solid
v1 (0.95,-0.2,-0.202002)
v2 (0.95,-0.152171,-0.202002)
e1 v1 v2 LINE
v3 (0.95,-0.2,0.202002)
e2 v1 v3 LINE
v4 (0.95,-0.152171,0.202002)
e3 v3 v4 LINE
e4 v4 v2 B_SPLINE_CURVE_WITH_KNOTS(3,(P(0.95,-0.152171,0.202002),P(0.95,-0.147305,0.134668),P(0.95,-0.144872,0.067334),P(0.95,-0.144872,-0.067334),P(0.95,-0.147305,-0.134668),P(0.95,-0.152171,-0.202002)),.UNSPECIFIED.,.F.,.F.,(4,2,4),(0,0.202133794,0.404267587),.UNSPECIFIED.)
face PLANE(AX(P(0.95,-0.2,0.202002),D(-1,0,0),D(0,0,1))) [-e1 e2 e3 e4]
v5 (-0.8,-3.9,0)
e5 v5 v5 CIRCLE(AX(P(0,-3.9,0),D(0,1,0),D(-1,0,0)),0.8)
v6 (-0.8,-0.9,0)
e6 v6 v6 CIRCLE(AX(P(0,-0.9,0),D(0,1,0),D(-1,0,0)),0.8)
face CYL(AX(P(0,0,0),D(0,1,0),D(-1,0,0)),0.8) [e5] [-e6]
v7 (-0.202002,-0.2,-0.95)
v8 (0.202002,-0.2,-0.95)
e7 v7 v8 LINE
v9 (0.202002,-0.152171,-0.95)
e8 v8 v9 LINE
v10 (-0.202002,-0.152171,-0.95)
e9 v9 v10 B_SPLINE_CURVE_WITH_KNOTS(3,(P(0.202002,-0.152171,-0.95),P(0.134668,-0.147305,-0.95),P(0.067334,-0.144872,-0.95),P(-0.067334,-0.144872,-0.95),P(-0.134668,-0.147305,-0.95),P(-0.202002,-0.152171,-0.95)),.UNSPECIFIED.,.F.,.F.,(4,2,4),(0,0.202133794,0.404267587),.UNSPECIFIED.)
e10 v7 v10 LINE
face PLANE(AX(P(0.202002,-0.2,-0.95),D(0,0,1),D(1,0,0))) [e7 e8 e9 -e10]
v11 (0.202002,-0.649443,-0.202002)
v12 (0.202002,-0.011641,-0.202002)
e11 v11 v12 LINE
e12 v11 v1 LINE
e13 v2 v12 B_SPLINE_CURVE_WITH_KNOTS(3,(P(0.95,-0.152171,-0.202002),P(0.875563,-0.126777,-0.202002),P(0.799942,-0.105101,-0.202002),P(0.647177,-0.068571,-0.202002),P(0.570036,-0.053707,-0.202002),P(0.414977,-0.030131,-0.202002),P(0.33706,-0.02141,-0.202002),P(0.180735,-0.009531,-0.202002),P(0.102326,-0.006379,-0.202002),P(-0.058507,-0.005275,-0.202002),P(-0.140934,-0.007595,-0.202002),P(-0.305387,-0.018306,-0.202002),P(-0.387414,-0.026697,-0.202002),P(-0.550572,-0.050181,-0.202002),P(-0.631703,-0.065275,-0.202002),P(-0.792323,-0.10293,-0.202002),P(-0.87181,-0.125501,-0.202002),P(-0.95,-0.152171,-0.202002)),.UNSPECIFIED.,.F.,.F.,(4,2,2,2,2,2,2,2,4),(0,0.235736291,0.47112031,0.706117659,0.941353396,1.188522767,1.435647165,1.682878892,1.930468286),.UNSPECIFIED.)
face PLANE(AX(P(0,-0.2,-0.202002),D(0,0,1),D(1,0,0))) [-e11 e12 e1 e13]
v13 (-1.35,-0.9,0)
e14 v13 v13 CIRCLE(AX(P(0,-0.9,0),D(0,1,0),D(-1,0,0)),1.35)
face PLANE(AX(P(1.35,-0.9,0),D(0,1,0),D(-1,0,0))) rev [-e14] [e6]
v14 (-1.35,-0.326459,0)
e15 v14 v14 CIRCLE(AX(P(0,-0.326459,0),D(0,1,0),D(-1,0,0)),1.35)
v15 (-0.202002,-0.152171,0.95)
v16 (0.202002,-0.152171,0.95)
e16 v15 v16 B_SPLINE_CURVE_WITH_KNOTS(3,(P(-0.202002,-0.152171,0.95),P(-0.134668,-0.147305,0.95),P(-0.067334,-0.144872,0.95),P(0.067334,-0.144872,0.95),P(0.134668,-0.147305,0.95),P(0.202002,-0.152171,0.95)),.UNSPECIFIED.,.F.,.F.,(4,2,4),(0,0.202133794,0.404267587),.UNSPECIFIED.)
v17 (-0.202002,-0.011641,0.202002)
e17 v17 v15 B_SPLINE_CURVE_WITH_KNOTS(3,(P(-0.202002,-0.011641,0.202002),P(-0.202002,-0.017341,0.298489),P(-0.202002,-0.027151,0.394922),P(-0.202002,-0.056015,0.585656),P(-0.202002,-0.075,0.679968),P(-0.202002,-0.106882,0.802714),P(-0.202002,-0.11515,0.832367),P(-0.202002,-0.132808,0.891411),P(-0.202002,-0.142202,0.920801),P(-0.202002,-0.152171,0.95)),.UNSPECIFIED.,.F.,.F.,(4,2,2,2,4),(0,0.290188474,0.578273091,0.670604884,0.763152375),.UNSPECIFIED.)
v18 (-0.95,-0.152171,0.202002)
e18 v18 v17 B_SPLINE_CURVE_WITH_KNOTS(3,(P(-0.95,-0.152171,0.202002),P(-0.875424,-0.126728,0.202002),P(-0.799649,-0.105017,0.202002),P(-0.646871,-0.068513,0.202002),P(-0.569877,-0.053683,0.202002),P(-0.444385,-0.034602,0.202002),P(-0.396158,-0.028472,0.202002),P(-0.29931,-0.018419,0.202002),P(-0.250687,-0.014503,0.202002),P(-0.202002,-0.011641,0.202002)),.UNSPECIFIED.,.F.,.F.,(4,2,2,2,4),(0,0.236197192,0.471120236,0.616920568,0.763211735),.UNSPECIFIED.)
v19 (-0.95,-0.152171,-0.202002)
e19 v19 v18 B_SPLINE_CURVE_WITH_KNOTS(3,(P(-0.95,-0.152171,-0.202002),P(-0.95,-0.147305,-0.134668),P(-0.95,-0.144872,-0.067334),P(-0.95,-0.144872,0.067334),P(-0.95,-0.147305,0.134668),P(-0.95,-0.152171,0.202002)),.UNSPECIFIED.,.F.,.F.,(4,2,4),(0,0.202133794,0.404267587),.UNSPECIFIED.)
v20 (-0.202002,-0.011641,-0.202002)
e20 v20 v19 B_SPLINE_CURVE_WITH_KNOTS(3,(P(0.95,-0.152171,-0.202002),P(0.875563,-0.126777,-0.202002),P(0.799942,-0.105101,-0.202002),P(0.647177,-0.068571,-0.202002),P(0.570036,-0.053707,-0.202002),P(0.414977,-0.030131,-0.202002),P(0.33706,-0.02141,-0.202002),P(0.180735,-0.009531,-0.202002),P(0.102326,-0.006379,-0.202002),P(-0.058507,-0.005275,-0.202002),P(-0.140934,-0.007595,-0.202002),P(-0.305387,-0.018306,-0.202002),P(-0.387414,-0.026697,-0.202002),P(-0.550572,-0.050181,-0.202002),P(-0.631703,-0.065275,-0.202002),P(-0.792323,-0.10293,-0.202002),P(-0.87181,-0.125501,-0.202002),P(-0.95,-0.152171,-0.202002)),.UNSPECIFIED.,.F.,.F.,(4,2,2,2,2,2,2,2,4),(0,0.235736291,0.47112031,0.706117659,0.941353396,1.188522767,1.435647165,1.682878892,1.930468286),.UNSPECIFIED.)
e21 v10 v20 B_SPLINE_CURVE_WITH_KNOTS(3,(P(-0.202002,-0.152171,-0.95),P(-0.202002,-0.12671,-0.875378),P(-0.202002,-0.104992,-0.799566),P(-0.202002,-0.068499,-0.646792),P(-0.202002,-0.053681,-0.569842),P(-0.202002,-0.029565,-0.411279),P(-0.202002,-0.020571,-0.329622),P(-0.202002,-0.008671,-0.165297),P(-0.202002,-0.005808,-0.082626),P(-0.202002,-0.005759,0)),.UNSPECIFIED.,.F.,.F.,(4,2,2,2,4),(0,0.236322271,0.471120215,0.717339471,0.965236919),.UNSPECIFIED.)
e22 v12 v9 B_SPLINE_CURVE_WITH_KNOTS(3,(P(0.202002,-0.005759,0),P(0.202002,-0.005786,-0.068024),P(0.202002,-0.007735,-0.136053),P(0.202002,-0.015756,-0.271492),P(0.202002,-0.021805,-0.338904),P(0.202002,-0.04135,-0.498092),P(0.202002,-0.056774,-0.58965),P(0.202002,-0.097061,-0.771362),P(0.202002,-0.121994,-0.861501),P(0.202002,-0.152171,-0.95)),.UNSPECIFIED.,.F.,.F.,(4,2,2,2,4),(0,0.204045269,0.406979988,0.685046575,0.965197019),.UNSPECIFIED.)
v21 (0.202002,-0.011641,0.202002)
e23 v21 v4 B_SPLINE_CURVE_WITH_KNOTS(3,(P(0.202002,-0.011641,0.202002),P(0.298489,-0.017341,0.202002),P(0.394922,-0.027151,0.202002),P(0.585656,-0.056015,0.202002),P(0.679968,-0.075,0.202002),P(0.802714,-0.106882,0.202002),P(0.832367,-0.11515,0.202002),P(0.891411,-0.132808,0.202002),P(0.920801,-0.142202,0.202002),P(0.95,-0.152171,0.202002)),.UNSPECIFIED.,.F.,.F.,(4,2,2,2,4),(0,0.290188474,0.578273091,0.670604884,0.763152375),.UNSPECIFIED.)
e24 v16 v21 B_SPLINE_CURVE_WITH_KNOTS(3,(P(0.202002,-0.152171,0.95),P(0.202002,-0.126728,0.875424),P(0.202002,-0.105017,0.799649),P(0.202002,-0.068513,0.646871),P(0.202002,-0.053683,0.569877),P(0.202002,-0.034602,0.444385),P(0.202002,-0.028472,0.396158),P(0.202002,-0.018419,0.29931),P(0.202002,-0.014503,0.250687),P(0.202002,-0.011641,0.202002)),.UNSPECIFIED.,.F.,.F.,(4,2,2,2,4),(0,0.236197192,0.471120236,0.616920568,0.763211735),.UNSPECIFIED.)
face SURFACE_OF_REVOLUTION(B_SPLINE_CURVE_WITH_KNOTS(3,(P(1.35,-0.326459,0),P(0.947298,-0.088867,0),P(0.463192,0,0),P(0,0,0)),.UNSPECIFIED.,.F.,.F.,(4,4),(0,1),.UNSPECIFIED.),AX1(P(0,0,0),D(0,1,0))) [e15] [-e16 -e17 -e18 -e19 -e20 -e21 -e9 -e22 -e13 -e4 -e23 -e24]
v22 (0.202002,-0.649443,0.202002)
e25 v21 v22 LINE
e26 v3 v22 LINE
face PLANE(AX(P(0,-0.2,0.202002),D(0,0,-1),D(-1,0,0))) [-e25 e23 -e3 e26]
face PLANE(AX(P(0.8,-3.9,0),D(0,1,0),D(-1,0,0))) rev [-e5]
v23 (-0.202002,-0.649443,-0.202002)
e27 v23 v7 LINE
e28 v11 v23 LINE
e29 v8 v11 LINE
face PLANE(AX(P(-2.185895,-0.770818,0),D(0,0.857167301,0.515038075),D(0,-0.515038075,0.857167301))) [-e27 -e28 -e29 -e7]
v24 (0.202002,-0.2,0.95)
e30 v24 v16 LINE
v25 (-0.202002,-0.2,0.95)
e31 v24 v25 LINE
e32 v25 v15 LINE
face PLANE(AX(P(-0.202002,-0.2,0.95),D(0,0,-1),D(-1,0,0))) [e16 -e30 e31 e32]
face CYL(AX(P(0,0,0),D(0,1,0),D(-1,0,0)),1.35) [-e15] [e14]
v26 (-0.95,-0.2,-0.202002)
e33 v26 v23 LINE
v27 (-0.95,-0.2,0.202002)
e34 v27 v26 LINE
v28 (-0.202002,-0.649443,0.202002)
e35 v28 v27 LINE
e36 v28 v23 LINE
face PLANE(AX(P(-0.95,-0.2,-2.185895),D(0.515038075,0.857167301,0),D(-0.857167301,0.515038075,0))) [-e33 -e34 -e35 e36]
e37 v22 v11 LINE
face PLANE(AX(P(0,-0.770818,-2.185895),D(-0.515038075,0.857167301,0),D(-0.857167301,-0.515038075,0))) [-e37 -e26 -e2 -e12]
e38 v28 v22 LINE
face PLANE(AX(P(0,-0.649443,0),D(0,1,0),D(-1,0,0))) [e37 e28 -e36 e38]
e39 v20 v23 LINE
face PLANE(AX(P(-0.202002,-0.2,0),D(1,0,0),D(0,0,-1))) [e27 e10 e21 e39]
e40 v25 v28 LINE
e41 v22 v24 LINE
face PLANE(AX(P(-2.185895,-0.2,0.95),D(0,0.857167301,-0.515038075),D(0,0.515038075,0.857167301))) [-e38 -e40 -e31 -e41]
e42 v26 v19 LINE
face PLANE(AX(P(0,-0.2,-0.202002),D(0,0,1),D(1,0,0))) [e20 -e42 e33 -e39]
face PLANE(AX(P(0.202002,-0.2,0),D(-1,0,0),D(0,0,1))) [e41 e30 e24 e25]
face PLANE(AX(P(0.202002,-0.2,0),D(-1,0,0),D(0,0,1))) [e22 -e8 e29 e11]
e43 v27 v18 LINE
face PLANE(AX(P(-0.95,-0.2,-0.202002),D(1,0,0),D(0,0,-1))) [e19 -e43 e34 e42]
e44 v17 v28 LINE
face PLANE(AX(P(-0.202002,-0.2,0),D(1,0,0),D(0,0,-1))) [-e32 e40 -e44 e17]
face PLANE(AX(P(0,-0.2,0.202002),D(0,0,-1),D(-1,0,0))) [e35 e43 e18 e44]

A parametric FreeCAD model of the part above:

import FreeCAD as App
import Part
import Sketcher

V = App.Vector
Q = App.Units.Quantity

doc = App.newDocument("Part")
params = doc.addObject("Spreadsheet::Sheet", "Params")
for row, (alias, value) in enumerate([
    ("sketch1_height", "3 mm"),
    ("sketch1_width", "0.8 mm"),
    ("sketch1_height2", "3.9 mm"),
    ("revolution_angle", "360 deg"),
    ("sketch2_height", "0.95 mm"),
    ("pocket1_length", "0.2 mm"),
    ("sketch3_width", "1.9 mm"),
    ("pocket2_length", "0.404004 mm"),
    ("sketch4_height", "1.9 mm"),
    ("pocket3_length", "0.404004 mm"),
    ("pad1_length", "0.3 mm"),
], start=1):
    params.set(f"A{row}", alias)
    params.set(f"B{row}", "=" + value)
    params.setAlias(f"B{row}", alias)

body = doc.addObject("PartDesign::Body", "Body")

# Sketch on XY plane
sketch1 = doc.addObject("Sketcher::SketchObject", "Sketch")
body.addObject(sketch1)
sketch1.AttachmentSupport = (doc.XY_Plane, [""])
sketch1.MapMode = "FlatFace"
sketch1.addGeometry([
    Part.LineSegment(V(1.35, -0.9, 0), V(1.35, -0.326459, 0)),  # 0
    Part.BSplineCurve([V(0, 0, 0), V(0.463192, 0, 0), V(0.947298, -0.088867, 0), V(1.35, -0.326459, 0)], [4, 4], [0, 1], False, 3, [1, 1, 1, 1], False),  # 1
    Part.LineSegment(V(0, 0, 0), V(0, -3.9, 0)),  # 2
    Part.LineSegment(V(0, -3.9, 0), V(0.8, -3.9, 0)),  # 3
    Part.LineSegment(V(0.8, -3.9, 0), V(0.8, -0.9, 0)),  # 4
    Part.LineSegment(V(0.8, -0.9, 0), V(1.35, -0.9, 0)),  # 5
], False)
sketch1.addConstraint([
    Sketcher.Constraint("Block", 1),
    Sketcher.Constraint("Coincident", 0, 2, 1, 2),
    Sketcher.Constraint("Coincident", 1, 1, 2, 1),
    Sketcher.Constraint("Coincident", 2, 2, 3, 1),
    Sketcher.Constraint("Coincident", 3, 2, 4, 1),
    Sketcher.Constraint("Coincident", 4, 2, 5, 1),
    Sketcher.Constraint("Coincident", 5, 2, 0, 1),
    Sketcher.Constraint("Vertical", 0),
    Sketcher.Constraint("Vertical", 2),
    Sketcher.Constraint("Horizontal", 3),
    Sketcher.Constraint("Vertical", 4),
    Sketcher.Constraint("Horizontal", 5),
    Sketcher.Constraint("DistanceY", 4, 1, 4, 2, Q("3 mm")),
    Sketcher.Constraint("DistanceX", 3, 1, 3, 2, Q("0.8 mm")),
    Sketcher.Constraint("DistanceY", 2, 2, 2, 1, Q("3.9 mm")),
])
sketch1.setExpression("Constraints[12]", "Params.sketch1_height")
sketch1.setExpression("Constraints[13]", "Params.sketch1_width")
sketch1.setExpression("Constraints[14]", "Params.sketch1_height2")
revolution = doc.addObject("PartDesign::Revolution", "Revolution")
body.addObject(revolution)
revolution.Profile = sketch1
revolution.ReferenceAxis = (sketch1, ["V_Axis"])
revolution.setExpression("Angle", "Params.revolution_angle")

# Sketch on XZ plane
sketch2 = doc.addObject("Sketcher::SketchObject", "Sketch001")
body.addObject(sketch2)
sketch2.AttachmentSupport = (doc.XZ_Plane, [""])
sketch2.MapMode = "FlatFace"
sketch2.addGeometry([
    Part.LineSegment(V(0.2, -0.95, 0), V(0.2, 0, 0)),
    Part.LineSegment(V(0.2, 0, 0), V(-0.2, 0, 0)),
    Part.LineSegment(V(-0.2, 0, 0), V(-0.2, -0.95, 0)),
    Part.LineSegment(V(-0.2, -0.95, 0), V(0.2, -0.95, 0)),
], False)
sketch2.addConstraint([
    Sketcher.Constraint("Coincident", 0, 2, 1, 1),
    Sketcher.Constraint("Coincident", 1, 2, 2, 1),
    Sketcher.Constraint("Coincident", 2, 2, 3, 1),
    Sketcher.Constraint("Coincident", 3, 2, 0, 1),
    Sketcher.Constraint("Vertical", 0),
    Sketcher.Constraint("Horizontal", 1),
    Sketcher.Constraint("Vertical", 2),
    Sketcher.Constraint("Horizontal", 3),
    Sketcher.Constraint("Symmetric", 0, 2, 1, 2, -1, 1),
    Sketcher.Constraint("DistanceY", 0, 1, 0, 2, Q("0.95 mm")),
    Sketcher.Constraint("DistanceX", -1, 1, 0, 2, Q("0.202002 mm")),
])
sketch2.setExpression("Constraints[9]", "Params.sketch2_height")
pocket1 = doc.addObject("PartDesign::Pocket", "Pocket")
body.addObject(pocket1)
pocket1.Profile = sketch2
pocket1.setExpression("Length", "Params.pocket1_length")
pocket1.Reversed = True
doc.recompute()

polarpattern = doc.addObject("PartDesign::PolarPattern", "PolarPattern")
body.addObject(polarpattern)
polarpattern.Originals = [pocket1]
polarpattern.Axis = (doc.Y_Axis, [""])
polarpattern.Angle = 360
polarpattern.Occurrences = 4
body.Tip = polarpattern

# Sketch on XY plane
sketch3 = doc.addObject("Sketcher::SketchObject", "Sketch002")
body.addObject(sketch3)
sketch3.AttachmentSupport = (doc.XY_Plane, [""])
sketch3.MapMode = "FlatFace"
sketch3.AttachmentOffset = App.Placement(V(0, 0, 0.202002), App.Rotation())
sketch3.addGeometry([
    Part.LineSegment(V(0, -0.8, 0), V(-0.9, -0.2, 0)),
    Part.LineSegment(V(-0.9, -0.2, 0), V(0.9, -0.2, 0)),
    Part.LineSegment(V(0.9, -0.2, 0), V(0, -0.8, 0)),
], False)
sketch3.addConstraint([
    Sketcher.Constraint("Coincident", 0, 2, 1, 1),
    Sketcher.Constraint("Coincident", 1, 2, 2, 1),
    Sketcher.Constraint("Coincident", 2, 2, 0, 1),
    Sketcher.Constraint("Horizontal", 1),
    Sketcher.Constraint("PointOnObject", 2, 2, -2),
    Sketcher.Constraint("Equal", 0, 2),
    Sketcher.Constraint("Angle", 0, Q("149 deg")),
    Sketcher.Constraint("DistanceX", 1, 1, 1, 2, Q("1.9 mm")),
    Sketcher.Constraint("DistanceY", 0, 2, -1, 1, Q("0.2 mm")),
])
sketch3.setExpression("Constraints[7]", "Params.sketch3_width")
pocket2 = doc.addObject("PartDesign::Pocket", "Pocket001")
body.addObject(pocket2)
pocket2.Profile = sketch3
pocket2.setExpression("Length", "Params.pocket2_length")

# Sketch on YZ plane
sketch4 = doc.addObject("Sketcher::SketchObject", "Sketch003")
body.addObject(sketch4)
sketch4.AttachmentSupport = (doc.YZ_Plane, [""])
sketch4.MapMode = "FlatFace"
sketch4.AttachmentOffset = App.Placement(V(0, 0, 0.202002), App.Rotation())
sketch4.addGeometry([
    Part.LineSegment(V(-0.8, 0, 0), V(-0.2, 0.9, 0)),
    Part.LineSegment(V(-0.2, 0.9, 0), V(-0.2, -0.9, 0)),
    Part.LineSegment(V(-0.2, -0.9, 0), V(-0.8, 0, 0)),
], False)
sketch4.addConstraint([
    Sketcher.Constraint("Coincident", 0, 2, 1, 1),
    Sketcher.Constraint("Coincident", 1, 2, 2, 1),
    Sketcher.Constraint("Coincident", 2, 2, 0, 1),
    Sketcher.Constraint("Vertical", 1),
    Sketcher.Constraint("PointOnObject", 2, 2, -1),
    Sketcher.Constraint("Equal", 0, 2),
    Sketcher.Constraint("Angle", 0, Q("59 deg")),
    Sketcher.Constraint("DistanceY", 1, 2, 1, 1, Q("1.9 mm")),
    Sketcher.Constraint("DistanceX", 0, 2, -1, 1, Q("0.2 mm")),
])
sketch4.setExpression("Constraints[7]", "Params.sketch4_height")
pocket3 = doc.addObject("PartDesign::Pocket", "Pocket002")
body.addObject(pocket3)
pocket3.Profile = sketch4
pocket3.setExpression("Length", "Params.pocket3_length")

# Sketch on XZ plane
sketch5 = doc.addObject("Sketcher::SketchObject", "Sketch004")
body.addObject(sketch5)
sketch5.AttachmentSupport = (doc.XZ_Plane, [""])
sketch5.MapMode = "FlatFace"
sketch5.AttachmentOffset = App.Placement(V(0, 0, 0.649443), App.Rotation())
sketch5.addGeometry([
    Part.LineSegment(V(0.2, -0.2, 0), V(0.2, 0.2, 0)),
    Part.LineSegment(V(0.2, 0.2, 0), V(-0.2, 0.2, 0)),
    Part.LineSegment(V(-0.2, 0.2, 0), V(-0.2, -0.2, 0)),
    Part.LineSegment(V(-0.2, -0.2, 0), V(0.2, -0.2, 0)),
], False)
sketch5.addConstraint([
    Sketcher.Constraint("Coincident", 0, 2, 1, 1),
    Sketcher.Constraint("Coincident", 1, 2, 2, 1),
    Sketcher.Constraint("Coincident", 2, 2, 3, 1),
    Sketcher.Constraint("Coincident", 3, 2, 0, 1),
    Sketcher.Constraint("Vertical", 0),
    Sketcher.Constraint("Horizontal", 1),
    Sketcher.Constraint("Vertical", 2),
    Sketcher.Constraint("Horizontal", 3),
    Sketcher.Constraint("Symmetric", 0, 2, 2, 2, -1, 1),
    Sketcher.Constraint("Equal", 3, 0),
    Sketcher.Constraint("DistanceX", -1, 1, 0, 2, Q("0.202002 mm")),
])
pad1 = doc.addObject("PartDesign::Pad", "Pad")
body.addObject(pad1)
pad1.Profile = sketch5
pad1.setExpression("Length", "Params.pad1_length")

doc.recompute()
